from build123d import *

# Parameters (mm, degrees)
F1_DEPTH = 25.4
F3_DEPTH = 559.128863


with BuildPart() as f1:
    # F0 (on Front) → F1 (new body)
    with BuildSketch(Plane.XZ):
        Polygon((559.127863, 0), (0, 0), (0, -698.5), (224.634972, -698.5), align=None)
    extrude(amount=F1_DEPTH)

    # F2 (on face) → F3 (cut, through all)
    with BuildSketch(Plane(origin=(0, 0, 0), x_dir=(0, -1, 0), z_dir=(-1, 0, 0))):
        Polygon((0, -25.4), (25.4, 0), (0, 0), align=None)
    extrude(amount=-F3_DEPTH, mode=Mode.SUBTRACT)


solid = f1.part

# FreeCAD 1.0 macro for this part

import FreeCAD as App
import Part
import Sketcher
from FreeCAD import Vector
Q = App.Units.Quantity

doc = App.newDocument("Part")
body = doc.addObject("PartDesign::Body", "Body")

# Sketch on XZ plane
sketch1 = doc.addObject("Sketcher::SketchObject", "Sketch")
body.addObject(sketch1)
sketch1.AttachmentSupport = (doc.XZ_Plane, [""])
sketch1.MapMode = "FlatFace"
sketch1.addGeometry([
    Part.LineSegment(Vector(559, 0, 0), Vector(0, 0, 0)),
    Part.LineSegment(Vector(0, 0, 0), Vector(0, -698, 0)),
    Part.LineSegment(Vector(0, -698, 0), Vector(225, -698, 0)),
    Part.LineSegment(Vector(225, -698, 0), Vector(559, 0, 0)),
], False)
sketch1.addConstraint([
    Sketcher.Constraint("Coincident", 0, 2, 1, 1),
    Sketcher.Constraint("Coincident", 1, 2, 2, 1),
    Sketcher.Constraint("Coincident", 2, 2, 3, 1),
    Sketcher.Constraint("Coincident", 3, 2, 0, 1),
    Sketcher.Constraint("Horizontal", 0),
    Sketcher.Constraint("Vertical", 1),
    Sketcher.Constraint("Horizontal", 2),
    Sketcher.Constraint("Coincident", 0, 2, -1, 1),
    Sketcher.Constraint("DistanceY", 1, 2, 1, 1, Q("27.5 in")),
    Sketcher.Constraint("DistanceX", 2, 1, 2, 2, Q("224.634972 mm")),
    Sketcher.Constraint("DistanceX", 0, 2, 0, 1, Q("559.127863 mm")),
])
pad1 = doc.addObject("PartDesign::Pad", "Pad")
body.addObject(pad1)
pad1.Profile = sketch1
pad1.Length = Q("1 in")

# Sketch on YZ plane
sketch2 = doc.addObject("Sketcher::SketchObject", "Sketch001")
body.addObject(sketch2)
sketch2.AttachmentSupport = (doc.YZ_Plane, [""])
sketch2.MapMode = "FlatFace"
sketch2.addGeometry([
    Part.LineSegment(Vector(0, -25, 0), Vector(-25, 0, 0)),
    Part.LineSegment(Vector(-25, 0, 0), Vector(0, 0, 0)),
    Part.LineSegment(Vector(0, 0, 0), Vector(0, -25, 0)),
], False)
sketch2.addConstraint([
    Sketcher.Constraint("Coincident", 0, 2, 1, 1),
    Sketcher.Constraint("Coincident", 1, 2, 2, 1),
    Sketcher.Constraint("Coincident", 2, 2, 0, 1),
    Sketcher.Constraint("Horizontal", 1),
    Sketcher.Constraint("Vertical", 2),
    Sketcher.Constraint("Coincident", 1, 2, -1, 1),
    Sketcher.Constraint("Equal", 1, 2),
    Sketcher.Constraint("DistanceX", 1, 1, 1, 2, Q("1 in")),
])
pocket1 = doc.addObject("PartDesign::Pocket", "Pocket")
body.addObject(pocket1)
pocket1.Profile = sketch2
pocket1.Type = "ThroughAll"
pocket1.Reversed = True

doc.recompute()
